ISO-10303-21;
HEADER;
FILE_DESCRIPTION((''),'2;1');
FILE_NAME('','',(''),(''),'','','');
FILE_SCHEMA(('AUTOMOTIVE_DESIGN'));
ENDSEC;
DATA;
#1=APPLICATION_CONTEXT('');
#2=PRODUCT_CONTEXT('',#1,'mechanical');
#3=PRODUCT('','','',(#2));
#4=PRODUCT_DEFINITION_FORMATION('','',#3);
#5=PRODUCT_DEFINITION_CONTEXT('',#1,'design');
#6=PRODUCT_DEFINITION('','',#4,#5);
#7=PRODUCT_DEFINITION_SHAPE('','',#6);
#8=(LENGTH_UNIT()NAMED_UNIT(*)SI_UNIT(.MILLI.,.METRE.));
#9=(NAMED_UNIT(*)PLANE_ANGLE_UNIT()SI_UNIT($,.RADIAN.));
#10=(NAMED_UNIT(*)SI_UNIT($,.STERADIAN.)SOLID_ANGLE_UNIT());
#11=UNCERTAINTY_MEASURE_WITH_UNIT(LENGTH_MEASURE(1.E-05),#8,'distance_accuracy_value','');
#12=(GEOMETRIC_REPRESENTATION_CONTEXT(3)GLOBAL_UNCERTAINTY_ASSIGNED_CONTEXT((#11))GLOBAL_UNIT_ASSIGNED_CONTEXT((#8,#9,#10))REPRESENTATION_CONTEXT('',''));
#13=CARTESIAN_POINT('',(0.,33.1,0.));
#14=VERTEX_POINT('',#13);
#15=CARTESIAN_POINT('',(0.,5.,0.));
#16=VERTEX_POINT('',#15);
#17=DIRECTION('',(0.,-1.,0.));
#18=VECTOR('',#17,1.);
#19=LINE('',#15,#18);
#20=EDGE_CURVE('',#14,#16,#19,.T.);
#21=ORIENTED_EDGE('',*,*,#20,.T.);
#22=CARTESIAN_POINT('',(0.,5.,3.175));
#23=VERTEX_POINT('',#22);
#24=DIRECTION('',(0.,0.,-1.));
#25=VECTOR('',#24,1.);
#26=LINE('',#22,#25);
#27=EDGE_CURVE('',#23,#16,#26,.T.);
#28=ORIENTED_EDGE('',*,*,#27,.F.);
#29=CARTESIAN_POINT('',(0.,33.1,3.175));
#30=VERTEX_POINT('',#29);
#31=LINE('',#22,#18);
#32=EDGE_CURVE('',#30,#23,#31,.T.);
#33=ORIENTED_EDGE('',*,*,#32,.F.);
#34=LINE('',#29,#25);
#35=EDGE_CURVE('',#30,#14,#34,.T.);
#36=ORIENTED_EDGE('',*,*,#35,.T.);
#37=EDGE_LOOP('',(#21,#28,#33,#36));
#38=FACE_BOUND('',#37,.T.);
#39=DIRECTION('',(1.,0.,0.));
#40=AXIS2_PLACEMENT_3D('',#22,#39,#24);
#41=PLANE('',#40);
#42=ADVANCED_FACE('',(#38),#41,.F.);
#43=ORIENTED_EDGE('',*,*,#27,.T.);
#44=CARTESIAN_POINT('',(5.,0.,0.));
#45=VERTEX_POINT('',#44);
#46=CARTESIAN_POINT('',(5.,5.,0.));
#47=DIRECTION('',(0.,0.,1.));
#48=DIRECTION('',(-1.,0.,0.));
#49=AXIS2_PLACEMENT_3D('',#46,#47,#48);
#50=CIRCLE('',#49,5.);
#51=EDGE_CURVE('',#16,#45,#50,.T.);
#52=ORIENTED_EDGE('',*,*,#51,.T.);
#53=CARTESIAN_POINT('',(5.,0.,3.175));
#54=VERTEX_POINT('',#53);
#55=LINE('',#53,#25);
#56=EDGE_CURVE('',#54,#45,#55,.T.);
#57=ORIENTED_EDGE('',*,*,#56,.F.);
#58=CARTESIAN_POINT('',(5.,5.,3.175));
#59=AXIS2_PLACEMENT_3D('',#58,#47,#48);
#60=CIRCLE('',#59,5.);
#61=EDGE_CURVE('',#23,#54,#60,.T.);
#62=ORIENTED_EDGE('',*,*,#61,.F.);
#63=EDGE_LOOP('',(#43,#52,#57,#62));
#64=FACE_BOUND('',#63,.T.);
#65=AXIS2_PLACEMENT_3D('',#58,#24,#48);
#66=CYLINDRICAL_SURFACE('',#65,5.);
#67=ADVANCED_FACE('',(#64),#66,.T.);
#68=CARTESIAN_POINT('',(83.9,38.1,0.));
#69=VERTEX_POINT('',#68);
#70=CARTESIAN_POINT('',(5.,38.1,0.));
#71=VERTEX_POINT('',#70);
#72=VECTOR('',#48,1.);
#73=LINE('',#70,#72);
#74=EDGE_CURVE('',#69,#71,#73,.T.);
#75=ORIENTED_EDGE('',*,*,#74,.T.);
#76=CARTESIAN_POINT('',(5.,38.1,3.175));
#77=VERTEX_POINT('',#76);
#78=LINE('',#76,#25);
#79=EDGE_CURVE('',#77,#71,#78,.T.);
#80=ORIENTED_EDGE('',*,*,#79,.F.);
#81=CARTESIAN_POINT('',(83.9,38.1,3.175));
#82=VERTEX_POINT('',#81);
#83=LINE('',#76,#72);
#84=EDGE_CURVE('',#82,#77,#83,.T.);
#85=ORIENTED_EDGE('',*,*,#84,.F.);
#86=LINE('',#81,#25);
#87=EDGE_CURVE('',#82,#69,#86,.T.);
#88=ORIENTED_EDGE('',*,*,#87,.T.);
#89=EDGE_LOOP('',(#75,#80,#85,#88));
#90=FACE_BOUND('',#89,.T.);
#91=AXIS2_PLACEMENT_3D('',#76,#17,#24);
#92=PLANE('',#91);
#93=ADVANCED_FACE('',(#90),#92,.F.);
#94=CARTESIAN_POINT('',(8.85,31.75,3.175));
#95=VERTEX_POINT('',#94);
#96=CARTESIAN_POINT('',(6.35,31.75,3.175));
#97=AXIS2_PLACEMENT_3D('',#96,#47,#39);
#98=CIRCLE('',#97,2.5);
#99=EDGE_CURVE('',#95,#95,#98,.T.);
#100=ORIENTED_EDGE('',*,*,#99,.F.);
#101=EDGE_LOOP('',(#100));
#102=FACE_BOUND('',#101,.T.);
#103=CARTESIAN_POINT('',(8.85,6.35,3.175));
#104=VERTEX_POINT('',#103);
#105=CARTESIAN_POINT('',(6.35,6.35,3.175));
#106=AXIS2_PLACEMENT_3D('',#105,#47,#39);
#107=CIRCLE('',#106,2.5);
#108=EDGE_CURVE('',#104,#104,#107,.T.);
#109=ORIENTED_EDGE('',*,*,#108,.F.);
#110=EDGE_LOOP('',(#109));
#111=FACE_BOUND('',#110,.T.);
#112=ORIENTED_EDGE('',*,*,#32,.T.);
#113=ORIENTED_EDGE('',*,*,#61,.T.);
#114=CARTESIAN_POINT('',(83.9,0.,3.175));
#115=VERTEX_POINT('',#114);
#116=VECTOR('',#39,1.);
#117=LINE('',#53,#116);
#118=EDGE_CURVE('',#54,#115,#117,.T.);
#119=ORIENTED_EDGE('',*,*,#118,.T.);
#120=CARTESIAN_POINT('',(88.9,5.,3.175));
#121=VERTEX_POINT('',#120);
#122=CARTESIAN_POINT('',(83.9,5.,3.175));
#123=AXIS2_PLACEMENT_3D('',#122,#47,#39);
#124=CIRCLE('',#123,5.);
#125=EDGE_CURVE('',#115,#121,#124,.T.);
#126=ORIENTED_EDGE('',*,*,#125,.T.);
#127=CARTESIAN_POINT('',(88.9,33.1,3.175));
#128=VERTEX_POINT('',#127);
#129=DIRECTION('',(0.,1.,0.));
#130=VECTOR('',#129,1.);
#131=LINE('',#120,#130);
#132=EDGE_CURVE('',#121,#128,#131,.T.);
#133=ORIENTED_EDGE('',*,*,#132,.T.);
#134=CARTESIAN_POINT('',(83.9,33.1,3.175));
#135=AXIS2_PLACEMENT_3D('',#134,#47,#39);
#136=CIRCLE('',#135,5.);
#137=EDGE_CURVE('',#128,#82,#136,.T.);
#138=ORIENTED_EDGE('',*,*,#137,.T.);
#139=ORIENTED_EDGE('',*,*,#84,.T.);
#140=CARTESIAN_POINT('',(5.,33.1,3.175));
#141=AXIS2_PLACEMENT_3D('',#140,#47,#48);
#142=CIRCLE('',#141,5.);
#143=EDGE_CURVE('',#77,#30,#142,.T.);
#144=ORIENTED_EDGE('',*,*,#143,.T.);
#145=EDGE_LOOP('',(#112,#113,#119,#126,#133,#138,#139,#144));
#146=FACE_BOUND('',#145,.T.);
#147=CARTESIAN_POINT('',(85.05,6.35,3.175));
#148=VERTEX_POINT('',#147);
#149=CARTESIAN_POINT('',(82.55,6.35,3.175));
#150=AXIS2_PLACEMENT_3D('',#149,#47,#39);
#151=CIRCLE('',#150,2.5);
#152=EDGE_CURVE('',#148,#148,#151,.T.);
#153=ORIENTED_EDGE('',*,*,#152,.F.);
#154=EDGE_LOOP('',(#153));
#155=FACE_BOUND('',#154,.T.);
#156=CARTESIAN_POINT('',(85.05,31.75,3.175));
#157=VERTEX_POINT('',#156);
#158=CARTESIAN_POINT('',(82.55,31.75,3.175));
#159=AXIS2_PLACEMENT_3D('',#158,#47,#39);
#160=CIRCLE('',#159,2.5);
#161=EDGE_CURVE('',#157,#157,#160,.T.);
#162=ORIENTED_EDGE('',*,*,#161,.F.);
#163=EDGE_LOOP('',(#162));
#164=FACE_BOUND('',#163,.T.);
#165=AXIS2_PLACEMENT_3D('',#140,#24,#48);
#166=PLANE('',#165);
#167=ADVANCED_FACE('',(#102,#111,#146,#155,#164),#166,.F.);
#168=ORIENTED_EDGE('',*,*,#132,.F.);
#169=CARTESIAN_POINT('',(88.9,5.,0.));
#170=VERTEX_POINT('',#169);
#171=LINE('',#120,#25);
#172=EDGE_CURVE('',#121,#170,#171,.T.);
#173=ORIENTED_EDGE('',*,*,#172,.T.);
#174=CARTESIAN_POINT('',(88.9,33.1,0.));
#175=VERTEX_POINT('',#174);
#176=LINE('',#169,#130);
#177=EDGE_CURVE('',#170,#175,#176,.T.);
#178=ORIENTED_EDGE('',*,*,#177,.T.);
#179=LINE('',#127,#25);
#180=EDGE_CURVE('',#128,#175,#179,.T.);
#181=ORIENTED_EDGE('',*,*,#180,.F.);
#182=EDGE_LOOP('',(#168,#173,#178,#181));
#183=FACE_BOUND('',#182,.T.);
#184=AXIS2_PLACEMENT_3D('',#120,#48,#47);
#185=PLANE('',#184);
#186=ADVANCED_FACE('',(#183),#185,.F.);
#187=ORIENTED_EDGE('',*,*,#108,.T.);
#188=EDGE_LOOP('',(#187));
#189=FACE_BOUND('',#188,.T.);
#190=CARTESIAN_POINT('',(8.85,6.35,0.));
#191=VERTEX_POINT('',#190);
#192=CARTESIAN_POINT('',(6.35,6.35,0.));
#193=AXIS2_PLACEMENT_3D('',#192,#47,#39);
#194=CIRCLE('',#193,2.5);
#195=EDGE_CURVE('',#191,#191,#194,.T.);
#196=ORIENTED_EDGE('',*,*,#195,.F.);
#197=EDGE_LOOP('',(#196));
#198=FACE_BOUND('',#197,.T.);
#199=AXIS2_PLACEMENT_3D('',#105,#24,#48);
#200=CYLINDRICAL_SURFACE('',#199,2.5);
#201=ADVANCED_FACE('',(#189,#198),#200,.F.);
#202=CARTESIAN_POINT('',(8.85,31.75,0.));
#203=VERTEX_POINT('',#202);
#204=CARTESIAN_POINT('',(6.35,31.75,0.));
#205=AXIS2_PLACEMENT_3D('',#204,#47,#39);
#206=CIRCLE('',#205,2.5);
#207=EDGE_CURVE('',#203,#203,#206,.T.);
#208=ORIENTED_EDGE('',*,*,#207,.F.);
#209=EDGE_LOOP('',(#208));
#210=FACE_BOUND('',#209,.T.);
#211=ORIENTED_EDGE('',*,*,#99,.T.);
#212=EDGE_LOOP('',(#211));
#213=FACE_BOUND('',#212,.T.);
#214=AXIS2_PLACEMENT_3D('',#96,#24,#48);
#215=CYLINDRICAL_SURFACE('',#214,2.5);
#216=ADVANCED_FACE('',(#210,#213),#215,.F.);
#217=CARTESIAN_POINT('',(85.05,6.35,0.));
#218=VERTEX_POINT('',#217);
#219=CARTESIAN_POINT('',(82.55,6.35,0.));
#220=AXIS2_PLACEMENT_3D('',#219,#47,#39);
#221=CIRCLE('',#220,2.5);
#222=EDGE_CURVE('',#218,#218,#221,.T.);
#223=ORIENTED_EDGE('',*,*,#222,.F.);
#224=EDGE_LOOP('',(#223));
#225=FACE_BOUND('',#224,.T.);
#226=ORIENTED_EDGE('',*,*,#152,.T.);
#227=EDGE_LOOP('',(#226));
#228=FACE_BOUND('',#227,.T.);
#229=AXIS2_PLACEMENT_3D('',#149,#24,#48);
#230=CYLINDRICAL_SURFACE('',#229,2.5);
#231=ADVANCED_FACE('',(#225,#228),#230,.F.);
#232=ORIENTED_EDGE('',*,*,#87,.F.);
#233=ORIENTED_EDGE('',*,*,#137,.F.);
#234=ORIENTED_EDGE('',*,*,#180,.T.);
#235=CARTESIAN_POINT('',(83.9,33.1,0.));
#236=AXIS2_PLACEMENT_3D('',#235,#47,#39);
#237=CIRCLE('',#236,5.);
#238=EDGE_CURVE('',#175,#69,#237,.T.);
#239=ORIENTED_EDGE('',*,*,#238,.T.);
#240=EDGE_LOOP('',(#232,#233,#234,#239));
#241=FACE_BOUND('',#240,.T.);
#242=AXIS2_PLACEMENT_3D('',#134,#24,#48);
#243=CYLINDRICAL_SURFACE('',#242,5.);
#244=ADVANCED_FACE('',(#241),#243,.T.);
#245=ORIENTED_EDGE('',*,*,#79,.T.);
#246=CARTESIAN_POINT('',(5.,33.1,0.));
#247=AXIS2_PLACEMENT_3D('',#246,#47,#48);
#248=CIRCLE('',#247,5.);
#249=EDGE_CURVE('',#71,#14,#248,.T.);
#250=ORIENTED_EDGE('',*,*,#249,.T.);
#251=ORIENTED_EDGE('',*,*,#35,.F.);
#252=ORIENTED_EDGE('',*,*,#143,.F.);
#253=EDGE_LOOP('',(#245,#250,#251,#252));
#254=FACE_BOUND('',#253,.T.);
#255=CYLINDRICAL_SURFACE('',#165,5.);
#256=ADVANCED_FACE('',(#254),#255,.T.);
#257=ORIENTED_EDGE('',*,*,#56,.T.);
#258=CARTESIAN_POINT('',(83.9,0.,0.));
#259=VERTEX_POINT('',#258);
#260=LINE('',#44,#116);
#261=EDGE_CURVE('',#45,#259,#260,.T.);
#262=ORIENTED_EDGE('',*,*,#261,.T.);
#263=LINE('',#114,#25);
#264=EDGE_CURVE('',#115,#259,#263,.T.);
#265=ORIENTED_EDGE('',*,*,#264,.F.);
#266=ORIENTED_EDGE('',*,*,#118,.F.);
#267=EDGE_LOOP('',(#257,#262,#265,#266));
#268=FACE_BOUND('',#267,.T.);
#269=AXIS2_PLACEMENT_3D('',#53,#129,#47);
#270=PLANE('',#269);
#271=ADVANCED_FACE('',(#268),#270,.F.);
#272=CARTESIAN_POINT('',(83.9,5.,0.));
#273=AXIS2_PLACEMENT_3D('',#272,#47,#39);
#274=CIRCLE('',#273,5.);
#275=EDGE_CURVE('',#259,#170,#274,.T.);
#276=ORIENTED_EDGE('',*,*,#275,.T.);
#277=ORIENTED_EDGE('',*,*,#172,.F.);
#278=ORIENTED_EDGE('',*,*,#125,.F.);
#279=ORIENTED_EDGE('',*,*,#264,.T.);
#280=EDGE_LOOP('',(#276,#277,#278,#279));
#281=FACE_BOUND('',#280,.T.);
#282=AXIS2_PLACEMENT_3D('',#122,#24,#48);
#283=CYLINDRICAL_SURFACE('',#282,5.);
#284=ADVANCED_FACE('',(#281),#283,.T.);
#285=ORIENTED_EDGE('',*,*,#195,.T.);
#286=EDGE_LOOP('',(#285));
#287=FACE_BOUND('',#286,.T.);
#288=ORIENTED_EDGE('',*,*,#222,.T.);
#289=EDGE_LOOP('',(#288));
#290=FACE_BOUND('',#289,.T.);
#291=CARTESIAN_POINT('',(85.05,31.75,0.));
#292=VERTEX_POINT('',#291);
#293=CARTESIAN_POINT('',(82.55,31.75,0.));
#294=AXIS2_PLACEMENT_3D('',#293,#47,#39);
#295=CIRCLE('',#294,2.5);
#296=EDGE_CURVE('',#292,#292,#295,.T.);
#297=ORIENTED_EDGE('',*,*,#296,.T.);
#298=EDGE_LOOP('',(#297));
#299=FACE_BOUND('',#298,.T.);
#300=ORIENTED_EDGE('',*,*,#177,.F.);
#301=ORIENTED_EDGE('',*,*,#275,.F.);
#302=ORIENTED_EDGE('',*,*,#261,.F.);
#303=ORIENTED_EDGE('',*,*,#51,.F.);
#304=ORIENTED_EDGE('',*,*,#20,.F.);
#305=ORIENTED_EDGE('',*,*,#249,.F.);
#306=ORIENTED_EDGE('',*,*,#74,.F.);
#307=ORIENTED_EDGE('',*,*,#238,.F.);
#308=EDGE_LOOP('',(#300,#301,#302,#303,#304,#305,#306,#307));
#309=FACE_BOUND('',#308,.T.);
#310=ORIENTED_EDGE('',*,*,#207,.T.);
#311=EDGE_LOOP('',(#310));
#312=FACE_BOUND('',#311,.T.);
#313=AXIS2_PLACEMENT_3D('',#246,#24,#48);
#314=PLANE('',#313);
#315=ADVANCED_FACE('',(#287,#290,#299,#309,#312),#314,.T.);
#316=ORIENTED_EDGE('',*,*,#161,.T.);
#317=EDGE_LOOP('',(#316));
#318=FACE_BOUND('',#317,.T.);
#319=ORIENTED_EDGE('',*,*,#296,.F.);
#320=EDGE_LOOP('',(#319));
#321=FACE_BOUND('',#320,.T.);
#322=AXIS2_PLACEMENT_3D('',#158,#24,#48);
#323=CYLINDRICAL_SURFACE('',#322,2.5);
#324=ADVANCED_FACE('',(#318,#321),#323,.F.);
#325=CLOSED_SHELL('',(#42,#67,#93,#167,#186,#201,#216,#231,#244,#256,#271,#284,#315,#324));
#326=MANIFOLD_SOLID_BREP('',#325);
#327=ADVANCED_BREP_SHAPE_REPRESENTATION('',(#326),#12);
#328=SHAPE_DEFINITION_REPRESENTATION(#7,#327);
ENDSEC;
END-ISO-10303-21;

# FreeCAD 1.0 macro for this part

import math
import FreeCAD as App
import Part
import Sketcher

doc = App.newDocument("Part")
body = doc.addObject("PartDesign::Body", "Body")

# Sketch on XY plane
sketch1 = doc.addObject("Sketcher::SketchObject", "Sketch")
body.addObject(sketch1)
sketch1.AttachmentSupport = (doc.XY_Plane, [""])
sketch1.MapMode = "FlatFace"
sketch1.addGeometry([
    Part.LineSegment(App.Vector(5, 0, 0), App.Vector(83.9, 0, 0)),  # 0
    Part.ArcOfCircle(Part.Circle(App.Vector(83.9, 5, 0), App.Vector(0, 0, 1), 5), math.radians(-90), math.radians(0)),  # 1
    Part.LineSegment(App.Vector(88.9, 5, 0), App.Vector(88.9, 33.1, 0)),  # 2
    Part.ArcOfCircle(Part.Circle(App.Vector(83.9, 33.1, 0), App.Vector(0, 0, 1), 5), math.radians(0), math.radians(90)),  # 3
    Part.LineSegment(App.Vector(83.9, 38.1, 0), App.Vector(5, 38.1, 0)),  # 4
    Part.ArcOfCircle(Part.Circle(App.Vector(5, 33.1, 0), App.Vector(0, 0, 1), 5), math.radians(90), math.radians(180)),  # 5
    Part.LineSegment(App.Vector(0, 33.1, 0), App.Vector(0, 5, 0)),  # 6
    Part.ArcOfCircle(Part.Circle(App.Vector(5, 5, 0), App.Vector(0, 0, 1), 5), math.radians(180), math.radians(270)),  # 7
    Part.Circle(App.Vector(6.3, 6.3, 0), App.Vector(0, 0, 1), 2.5),  # 8
    Part.Circle(App.Vector(82.5, 6.3, 0), App.Vector(0, 0, 1), 2.5),  # 9
    Part.Circle(App.Vector(6.3, 31.8, 0), App.Vector(0, 0, 1), 2.5),  # 10
    Part.Circle(App.Vector(82.5, 31.8, 0), App.Vector(0, 0, 1), 2.5),  # 11
], False)
sketch1.addConstraint([
    Sketcher.Constraint("Tangent", 0, 2, 1, 1),
    Sketcher.Constraint("Tangent", 1, 2, 2, 1),
    Sketcher.Constraint("Tangent", 2, 2, 3, 1),
    Sketcher.Constraint("Tangent", 3, 2, 4, 1),
    Sketcher.Constraint("Tangent", 4, 2, 5, 1),
    Sketcher.Constraint("Tangent", 5, 2, 6, 1),
    Sketcher.Constraint("Tangent", 6, 2, 7, 1),
    Sketcher.Constraint("Tangent", 7, 2, 0, 1),
    Sketcher.Constraint("Horizontal", 0),
    Sketcher.Constraint("Vertical", 2),
    Sketcher.Constraint("Horizontal", 4),
    Sketcher.Constraint("Vertical", 6),
    Sketcher.Constraint("Equal", 1, 3),
    Sketcher.Constraint("Equal", 3, 5),
    Sketcher.Constraint("Equal", 5, 7),
    Sketcher.Constraint("Equal", 8, 9),
    Sketcher.Constraint("Equal", 9, 10),
    Sketcher.Constraint("Equal", 10, 11),
    Sketcher.Constraint("PointOnObject", 0, 2, -1),
    Sketcher.Constraint("PointOnObject", 5, 2, -2),
    Sketcher.Constraint("Horizontal", 8, 3, 9, 3),
    Sketcher.Constraint("Horizontal", 10, 3, 11, 3),
    Sketcher.Constraint("Vertical", 8, 3, 10, 3),
    Sketcher.Constraint("Vertical", 9, 3, 11, 3),
    Sketcher.Constraint("Diameter", 8, 5.0),
    Sketcher.Constraint("Radius", 1, 5.0),
    Sketcher.Constraint("DistanceX", 0, 1, 0, 2, 78.9),
    Sketcher.Constraint("DistanceY", 2, 1, 2, 2, 28.1),
    Sketcher.Constraint("DistanceX", 8, 3, 9, 3, 76.2),
    Sketcher.Constraint("DistanceY", 8, 3, 10, 3, 25.4),
    Sketcher.Constraint("DistanceX", -1, 1, 8, 3, 6.35),
    Sketcher.Constraint("DistanceY", -1, 1, 8, 3, 6.35),
])
pad1 = doc.addObject("PartDesign::Pad", "Pad")
body.addObject(pad1)
pad1.Profile = sketch1
pad1.Length = 3.175

doc.recompute()
